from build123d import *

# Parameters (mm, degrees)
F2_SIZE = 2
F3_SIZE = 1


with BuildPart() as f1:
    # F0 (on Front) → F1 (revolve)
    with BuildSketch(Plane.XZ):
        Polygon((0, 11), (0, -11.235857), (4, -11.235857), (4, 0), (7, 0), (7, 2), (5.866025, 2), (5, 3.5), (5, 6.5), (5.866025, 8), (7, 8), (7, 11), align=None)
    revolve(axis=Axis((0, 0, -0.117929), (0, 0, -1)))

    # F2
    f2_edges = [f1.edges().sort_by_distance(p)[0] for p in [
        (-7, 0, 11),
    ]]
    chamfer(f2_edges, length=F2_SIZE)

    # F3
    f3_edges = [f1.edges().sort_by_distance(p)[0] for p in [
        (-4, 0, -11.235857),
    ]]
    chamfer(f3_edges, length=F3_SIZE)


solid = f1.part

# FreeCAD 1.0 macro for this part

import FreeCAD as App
import Part
import Sketcher
from FreeCAD import Vector
Q = App.Units.Quantity


def edges_at(feature, points):
    """Names of the edges that pass closest to the given points."""
    edges = feature.Shape.Edges
    near = lambda p: min(range(len(edges)), key=lambda i: edges[i].distToShape(Part.Vertex(*p))[0])
    return sorted({f"Edge{near(p) + 1}" for p in points})

doc = App.newDocument("Part")
body = doc.addObject("PartDesign::Body", "Body")

# Sketch on XZ plane
sketch1 = body.newObject("Sketcher::SketchObject", "Sketch")
sketch1.AttachmentSupport = (doc.getObject("XZ_Plane"), [""])
sketch1.MapMode = "FlatFace"
sketch1.addGeometry(Part.LineSegment(Vector(0, 11, 0), Vector(0, -11.2, 0)), False)
sketch1.addGeometry(Part.LineSegment(Vector(0, -11.2, 0), Vector(4, -11.2, 0)), False)
sketch1.addGeometry(Part.LineSegment(Vector(4, -11.2, 0), Vector(4, 0, 0)), False)
sketch1.addGeometry(Part.LineSegment(Vector(4, 0, 0), Vector(7, 0, 0)), False)
sketch1.addGeometry(Part.LineSegment(Vector(7, 0, 0), Vector(7, 2, 0)), False)
sketch1.addGeometry(Part.LineSegment(Vector(7, 2, 0), Vector(5.9, 2, 0)), False)
sketch1.addGeometry(Part.LineSegment(Vector(5.9, 2, 0), Vector(5, 3.5, 0)), False)
sketch1.addGeometry(Part.LineSegment(Vector(5, 3.5, 0), Vector(5, 6.5, 0)), False)
sketch1.addGeometry(Part.LineSegment(Vector(5, 6.5, 0), Vector(5.9, 8, 0)), False)
sketch1.addGeometry(Part.LineSegment(Vector(5.9, 8, 0), Vector(7, 8, 0)), False)
sketch1.addGeometry(Part.LineSegment(Vector(7, 8, 0), Vector(7, 11, 0)), False)
sketch1.addGeometry(Part.LineSegment(Vector(7, 11, 0), Vector(0, 11, 0)), False)
sketch1.addConstraint(Sketcher.Constraint("Coincident", 0, 2, 1, 1))
sketch1.addConstraint(Sketcher.Constraint("Coincident", 1, 2, 2, 1))
sketch1.addConstraint(Sketcher.Constraint("Coincident", 2, 2, 3, 1))
sketch1.addConstraint(Sketcher.Constraint("Coincident", 3, 2, 4, 1))
sketch1.addConstraint(Sketcher.Constraint("Coincident", 4, 2, 5, 1))
sketch1.addConstraint(Sketcher.Constraint("Coincident", 5, 2, 6, 1))
sketch1.addConstraint(Sketcher.Constraint("Coincident", 6, 2, 7, 1))
sketch1.addConstraint(Sketcher.Constraint("Coincident", 7, 2, 8, 1))
sketch1.addConstraint(Sketcher.Constraint("Coincident", 8, 2, 9, 1))
sketch1.addConstraint(Sketcher.Constraint("Coincident", 9, 2, 10, 1))
sketch1.addConstraint(Sketcher.Constraint("Coincident", 10, 2, 11, 1))
sketch1.addConstraint(Sketcher.Constraint("Coincident", 11, 2, 0, 1))
sketch1.addConstraint(Sketcher.Constraint("Vertical", 0))
sketch1.addConstraint(Sketcher.Constraint("Horizontal", 1))
sketch1.addConstraint(Sketcher.Constraint("Vertical", 2))
sketch1.addConstraint(Sketcher.Constraint("Horizontal", 3))
sketch1.addConstraint(Sketcher.Constraint("Vertical", 4))
sketch1.addConstraint(Sketcher.Constraint("Horizontal", 5))
sketch1.addConstraint(Sketcher.Constraint("Vertical", 7))
sketch1.addConstraint(Sketcher.Constraint("Horizontal", 9))
sketch1.addConstraint(Sketcher.Constraint("Vertical", 10))
sketch1.addConstraint(Sketcher.Constraint("Horizontal", 11))
sketch1.addConstraint(Sketcher.Constraint("PointOnObject", 0, 2, -2))
sketch1.addConstraint(Sketcher.Constraint("PointOnObject", 2, 2, -1))
sketch1.addConstraint(Sketcher.Constraint("Vertical", 5, 2, 8, 2))
sketch1.addConstraint(Sketcher.Constraint("Vertical", 4, 2, 9, 2))
sketch1.addConstraint(Sketcher.Constraint("Equal", 3, 7))
sketch1.addConstraint(Sketcher.Constraint("Equal", 7, 10))
sketch1.addConstraint(Sketcher.Constraint("Equal", 6, 8))
sketch1.addConstraint(Sketcher.Constraint("DistanceX", 1, 1, 1, 2, 4.0))
sketch1.addConstraint(Sketcher.Constraint("DistanceX", 3, 1, 3, 2, 3.0))
sketch1.addConstraint(Sketcher.Constraint("DistanceY", 4, 1, 4, 2, 2.0))
sketch1.addConstraint(Sketcher.Constraint("Angle", 6, Q("119.999988 deg")))
sketch1.addConstraint(Sketcher.Constraint("DistanceX", -1, 1, 6, 2, 5.0))
sketch1.addConstraint(Sketcher.Constraint("DistanceY", -1, 1, 8, 2, 8.0))
sketch1.addConstraint(Sketcher.Constraint("DistanceY", 0, 2, 0, 1, 22.235857))
revolution = body.newObject("PartDesign::Revolution", "Revolution")
revolution.Profile = sketch1
revolution.ReferenceAxis = (sketch1, ["V_Axis"])
revolution.Angle = 360
doc.recompute()

chamfer = body.newObject("PartDesign::Chamfer", "Chamfer")
chamfer.Base = (revolution, edges_at(revolution, [(-7, 0, 11)]))
chamfer.Size = 2
doc.recompute()

chamfer2 = body.newObject("PartDesign::Chamfer", "Chamfer001")
chamfer2.Base = (chamfer, edges_at(chamfer, [(-4, 0, -11.236)]))
chamfer2.Size = 1

doc.recompute()
